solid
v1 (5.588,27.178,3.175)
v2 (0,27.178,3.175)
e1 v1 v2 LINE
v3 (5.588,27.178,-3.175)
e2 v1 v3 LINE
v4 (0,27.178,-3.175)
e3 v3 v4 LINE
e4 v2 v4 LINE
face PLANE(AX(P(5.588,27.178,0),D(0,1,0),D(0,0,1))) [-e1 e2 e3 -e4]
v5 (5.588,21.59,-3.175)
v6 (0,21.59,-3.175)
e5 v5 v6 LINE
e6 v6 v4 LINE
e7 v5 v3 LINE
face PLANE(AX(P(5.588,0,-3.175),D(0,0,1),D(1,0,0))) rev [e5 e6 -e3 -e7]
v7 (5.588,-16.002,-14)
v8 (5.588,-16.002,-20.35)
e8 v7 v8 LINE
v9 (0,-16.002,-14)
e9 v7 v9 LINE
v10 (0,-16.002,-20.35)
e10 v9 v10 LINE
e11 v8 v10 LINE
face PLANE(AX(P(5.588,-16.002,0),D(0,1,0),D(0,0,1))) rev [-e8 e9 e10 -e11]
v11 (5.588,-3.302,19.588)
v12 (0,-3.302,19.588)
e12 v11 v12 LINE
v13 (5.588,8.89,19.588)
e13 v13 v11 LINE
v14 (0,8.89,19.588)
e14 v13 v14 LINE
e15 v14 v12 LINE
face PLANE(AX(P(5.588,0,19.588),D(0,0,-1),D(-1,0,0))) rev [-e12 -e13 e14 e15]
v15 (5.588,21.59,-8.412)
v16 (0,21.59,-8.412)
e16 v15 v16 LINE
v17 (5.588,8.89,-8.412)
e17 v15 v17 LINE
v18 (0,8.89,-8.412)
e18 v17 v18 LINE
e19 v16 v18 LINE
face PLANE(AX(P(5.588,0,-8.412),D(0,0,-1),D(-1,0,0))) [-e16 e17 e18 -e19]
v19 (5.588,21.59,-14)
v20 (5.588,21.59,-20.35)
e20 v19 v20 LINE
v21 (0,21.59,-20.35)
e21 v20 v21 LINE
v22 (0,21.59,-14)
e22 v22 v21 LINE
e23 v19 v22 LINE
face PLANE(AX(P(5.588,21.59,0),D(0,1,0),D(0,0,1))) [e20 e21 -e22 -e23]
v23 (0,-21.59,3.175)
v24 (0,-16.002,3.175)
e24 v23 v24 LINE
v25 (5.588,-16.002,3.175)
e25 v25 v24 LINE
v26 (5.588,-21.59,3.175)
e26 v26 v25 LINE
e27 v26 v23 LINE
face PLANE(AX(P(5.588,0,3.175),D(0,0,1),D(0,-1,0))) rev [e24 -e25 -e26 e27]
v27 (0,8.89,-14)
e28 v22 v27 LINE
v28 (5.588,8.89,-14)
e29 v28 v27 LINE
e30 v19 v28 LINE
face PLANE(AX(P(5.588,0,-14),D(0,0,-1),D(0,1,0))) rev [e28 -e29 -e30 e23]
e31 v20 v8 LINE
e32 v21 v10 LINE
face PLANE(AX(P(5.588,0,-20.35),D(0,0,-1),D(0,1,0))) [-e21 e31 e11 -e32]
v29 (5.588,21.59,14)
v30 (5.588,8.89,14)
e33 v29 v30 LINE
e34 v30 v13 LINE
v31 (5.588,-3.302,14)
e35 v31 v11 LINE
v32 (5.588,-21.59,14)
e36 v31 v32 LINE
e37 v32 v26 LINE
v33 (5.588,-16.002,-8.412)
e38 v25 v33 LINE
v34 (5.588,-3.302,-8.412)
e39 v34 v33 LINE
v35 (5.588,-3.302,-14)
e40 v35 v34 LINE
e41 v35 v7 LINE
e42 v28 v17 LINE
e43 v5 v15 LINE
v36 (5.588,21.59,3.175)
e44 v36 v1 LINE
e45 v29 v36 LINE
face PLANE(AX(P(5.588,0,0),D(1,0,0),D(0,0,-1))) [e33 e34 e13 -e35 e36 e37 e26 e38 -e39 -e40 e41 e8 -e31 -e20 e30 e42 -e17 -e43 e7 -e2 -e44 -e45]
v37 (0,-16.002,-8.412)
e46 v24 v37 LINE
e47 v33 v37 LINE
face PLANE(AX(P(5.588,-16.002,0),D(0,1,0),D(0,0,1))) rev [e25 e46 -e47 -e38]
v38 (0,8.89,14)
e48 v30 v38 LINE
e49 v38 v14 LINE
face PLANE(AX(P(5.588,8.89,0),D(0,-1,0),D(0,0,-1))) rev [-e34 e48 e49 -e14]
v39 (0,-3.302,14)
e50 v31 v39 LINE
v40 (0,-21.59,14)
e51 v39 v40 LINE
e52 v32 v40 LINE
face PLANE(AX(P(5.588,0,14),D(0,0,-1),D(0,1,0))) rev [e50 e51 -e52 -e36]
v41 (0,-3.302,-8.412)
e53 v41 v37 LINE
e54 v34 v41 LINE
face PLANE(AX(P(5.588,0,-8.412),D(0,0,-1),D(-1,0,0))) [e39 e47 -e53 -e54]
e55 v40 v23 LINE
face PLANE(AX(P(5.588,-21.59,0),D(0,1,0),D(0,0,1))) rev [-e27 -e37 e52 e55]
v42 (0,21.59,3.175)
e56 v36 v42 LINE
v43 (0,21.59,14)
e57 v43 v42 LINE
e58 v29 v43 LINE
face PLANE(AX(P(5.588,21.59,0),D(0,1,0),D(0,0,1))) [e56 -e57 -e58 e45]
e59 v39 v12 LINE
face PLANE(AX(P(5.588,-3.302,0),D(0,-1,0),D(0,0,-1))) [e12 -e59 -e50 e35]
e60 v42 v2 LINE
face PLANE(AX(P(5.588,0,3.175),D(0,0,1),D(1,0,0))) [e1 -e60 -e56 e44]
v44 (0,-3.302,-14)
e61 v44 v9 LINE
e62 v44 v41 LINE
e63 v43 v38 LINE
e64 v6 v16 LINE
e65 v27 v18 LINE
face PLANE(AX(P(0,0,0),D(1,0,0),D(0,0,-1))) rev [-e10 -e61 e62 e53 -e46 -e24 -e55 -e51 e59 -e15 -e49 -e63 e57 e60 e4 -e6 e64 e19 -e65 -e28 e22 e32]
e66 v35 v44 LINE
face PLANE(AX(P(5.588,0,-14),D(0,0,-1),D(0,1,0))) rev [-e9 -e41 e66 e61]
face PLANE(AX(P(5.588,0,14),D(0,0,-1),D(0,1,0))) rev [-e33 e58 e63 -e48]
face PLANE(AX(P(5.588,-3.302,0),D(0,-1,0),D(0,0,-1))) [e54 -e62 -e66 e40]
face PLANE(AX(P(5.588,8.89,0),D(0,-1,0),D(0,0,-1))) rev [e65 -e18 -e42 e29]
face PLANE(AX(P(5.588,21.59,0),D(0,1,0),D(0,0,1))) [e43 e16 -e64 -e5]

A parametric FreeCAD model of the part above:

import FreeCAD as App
import Part
import Sketcher
Q = App.Units.Quantity

doc = App.newDocument("Part")
body = doc.addObject("PartDesign::Body", "Body")

# Sketch on YZ plane
sketch1 = body.newObject("Sketcher::SketchObject", "Sketch")
sketch1.AttachmentSupport = (doc.getObject("YZ_Plane"), [""])
sketch1.MapMode = "FlatFace"
sketch1.addGeometry([
    Part.LineSegment(App.Vector(22, 3, 0), App.Vector(22, 14, 0)),  # 0
    Part.LineSegment(App.Vector(22, 14, 0), App.Vector(9, 14, 0)),  # 1
    Part.LineSegment(App.Vector(9, 14, 0), App.Vector(9, 20, 0)),  # 2
    Part.LineSegment(App.Vector(9, 20, 0), App.Vector(-3, 20, 0)),  # 3
    Part.LineSegment(App.Vector(-3, 20, 0), App.Vector(-3, 14, 0)),  # 4
    Part.LineSegment(App.Vector(-3, 14, 0), App.Vector(-22, 14, 0)),  # 5
    Part.LineSegment(App.Vector(-22, 14, 0), App.Vector(-22, 3, 0)),  # 6
    Part.LineSegment(App.Vector(-22, 3, 0), App.Vector(-16, 3, 0)),  # 7
    Part.LineSegment(App.Vector(-16, 3, 0), App.Vector(-16, -8, 0)),  # 8
    Part.LineSegment(App.Vector(-16, -8, 0), App.Vector(-3, -8, 0)),  # 9
    Part.LineSegment(App.Vector(-3, -8, 0), App.Vector(-3, -14, 0)),  # 10
    Part.LineSegment(App.Vector(-3, -14, 0), App.Vector(-16, -14, 0)),  # 11
    Part.LineSegment(App.Vector(-16, -14, 0), App.Vector(-16, -20, 0)),  # 12
    Part.LineSegment(App.Vector(-16, -20, 0), App.Vector(22, -20, 0)),  # 13
    Part.LineSegment(App.Vector(22, -20, 0), App.Vector(22, -14, 0)),  # 14
    Part.LineSegment(App.Vector(22, -14, 0), App.Vector(9, -14, 0)),  # 15
    Part.LineSegment(App.Vector(9, -14, 0), App.Vector(9, -8, 0)),  # 16
    Part.LineSegment(App.Vector(9, -8, 0), App.Vector(22, -8, 0)),  # 17
    Part.LineSegment(App.Vector(22, -8, 0), App.Vector(22, -3, 0)),  # 18
    Part.LineSegment(App.Vector(22, -3, 0), App.Vector(27, -3, 0)),  # 19
    Part.LineSegment(App.Vector(27, -3, 0), App.Vector(27, 3, 0)),  # 20
    Part.LineSegment(App.Vector(27, 3, 0), App.Vector(22, 3, 0)),  # 21
], False)
sketch1.addConstraint([
    Sketcher.Constraint("Coincident", 0, 2, 1, 1),
    Sketcher.Constraint("Coincident", 1, 2, 2, 1),
    Sketcher.Constraint("Coincident", 2, 2, 3, 1),
    Sketcher.Constraint("Coincident", 3, 2, 4, 1),
    Sketcher.Constraint("Coincident", 4, 2, 5, 1),
    Sketcher.Constraint("Coincident", 5, 2, 6, 1),
    Sketcher.Constraint("Coincident", 6, 2, 7, 1),
    Sketcher.Constraint("Coincident", 7, 2, 8, 1),
    Sketcher.Constraint("Coincident", 8, 2, 9, 1),
    Sketcher.Constraint("Coincident", 9, 2, 10, 1),
    Sketcher.Constraint("Coincident", 10, 2, 11, 1),
    Sketcher.Constraint("Coincident", 11, 2, 12, 1),
    Sketcher.Constraint("Coincident", 12, 2, 13, 1),
    Sketcher.Constraint("Coincident", 13, 2, 14, 1),
    Sketcher.Constraint("Coincident", 14, 2, 15, 1),
    Sketcher.Constraint("Coincident", 15, 2, 16, 1),
    Sketcher.Constraint("Coincident", 16, 2, 17, 1),
    Sketcher.Constraint("Coincident", 17, 2, 18, 1),
    Sketcher.Constraint("Coincident", 18, 2, 19, 1),
    Sketcher.Constraint("Coincident", 19, 2, 20, 1),
    Sketcher.Constraint("Coincident", 20, 2, 21, 1),
    Sketcher.Constraint("Coincident", 21, 2, 0, 1),
    Sketcher.Constraint("Vertical", 0),
    Sketcher.Constraint("Horizontal", 1),
    Sketcher.Constraint("Vertical", 2),
    Sketcher.Constraint("Horizontal", 3),
    Sketcher.Constraint("Vertical", 4),
    Sketcher.Constraint("Horizontal", 5),
    Sketcher.Constraint("Vertical", 6),
    Sketcher.Constraint("Horizontal", 7),
    Sketcher.Constraint("Vertical", 8),
    Sketcher.Constraint("Horizontal", 9),
    Sketcher.Constraint("Vertical", 10),
    Sketcher.Constraint("Horizontal", 11),
    Sketcher.Constraint("Vertical", 12),
    Sketcher.Constraint("Horizontal", 13),
    Sketcher.Constraint("Vertical", 14),
    Sketcher.Constraint("Horizontal", 15),
    Sketcher.Constraint("Vertical", 16),
    Sketcher.Constraint("Horizontal", 17),
    Sketcher.Constraint("Vertical", 18),
    Sketcher.Constraint("Horizontal", 19),
    Sketcher.Constraint("Vertical", 20),
    Sketcher.Constraint("Horizontal", 21),
    Sketcher.Constraint("Symmetric", 5, 2, 14, 2, -1, 1),
    Sketcher.Constraint("Symmetric", 6, 2, 18, 2, -1, 1),
    Sketcher.Constraint("Symmetric", 0, 2, 5, 2, -2),
    Sketcher.Constraint("Symmetric", 4, 2, 10, 2, -1),
    Sketcher.Constraint("Horizontal", 9, 2, 16, 2),
    Sketcher.Constraint("Horizontal", 7, 2, 20, 2),
    Sketcher.Constraint("Vertical", 8, 2, 11, 2),
    Sketcher.Constraint("Vertical", 2, 2, 15, 2),
    Sketcher.Constraint("Equal", 1, 9),
    Sketcher.Constraint("Equal", 7, 19),
    Sketcher.Constraint("Equal", 21, 2),
    Sketcher.Constraint("Equal", 4, 10),
    Sketcher.Constraint("Equal", 14, 20),
    Sketcher.Constraint("DistanceX", 1, 2, 1, 1, Q("0.5 in")),
    Sketcher.Constraint("DistanceX", 3, 2, 3, 1, Q("0.48 in")),
    Sketcher.Constraint("DistanceX", 5, 2, 5, 1, Q("0.72 in")),
    Sketcher.Constraint("DistanceY", 12, 2, 12, 1, Q("0.25 in")),
    Sketcher.Constraint("DistanceY", 0, 1, 0, 2, 10.825),
])
pad1 = body.newObject("PartDesign::Pad", "Pad")
pad1.Profile = sketch1
pad1.Length = Q("0.22 in")

doc.recompute()
